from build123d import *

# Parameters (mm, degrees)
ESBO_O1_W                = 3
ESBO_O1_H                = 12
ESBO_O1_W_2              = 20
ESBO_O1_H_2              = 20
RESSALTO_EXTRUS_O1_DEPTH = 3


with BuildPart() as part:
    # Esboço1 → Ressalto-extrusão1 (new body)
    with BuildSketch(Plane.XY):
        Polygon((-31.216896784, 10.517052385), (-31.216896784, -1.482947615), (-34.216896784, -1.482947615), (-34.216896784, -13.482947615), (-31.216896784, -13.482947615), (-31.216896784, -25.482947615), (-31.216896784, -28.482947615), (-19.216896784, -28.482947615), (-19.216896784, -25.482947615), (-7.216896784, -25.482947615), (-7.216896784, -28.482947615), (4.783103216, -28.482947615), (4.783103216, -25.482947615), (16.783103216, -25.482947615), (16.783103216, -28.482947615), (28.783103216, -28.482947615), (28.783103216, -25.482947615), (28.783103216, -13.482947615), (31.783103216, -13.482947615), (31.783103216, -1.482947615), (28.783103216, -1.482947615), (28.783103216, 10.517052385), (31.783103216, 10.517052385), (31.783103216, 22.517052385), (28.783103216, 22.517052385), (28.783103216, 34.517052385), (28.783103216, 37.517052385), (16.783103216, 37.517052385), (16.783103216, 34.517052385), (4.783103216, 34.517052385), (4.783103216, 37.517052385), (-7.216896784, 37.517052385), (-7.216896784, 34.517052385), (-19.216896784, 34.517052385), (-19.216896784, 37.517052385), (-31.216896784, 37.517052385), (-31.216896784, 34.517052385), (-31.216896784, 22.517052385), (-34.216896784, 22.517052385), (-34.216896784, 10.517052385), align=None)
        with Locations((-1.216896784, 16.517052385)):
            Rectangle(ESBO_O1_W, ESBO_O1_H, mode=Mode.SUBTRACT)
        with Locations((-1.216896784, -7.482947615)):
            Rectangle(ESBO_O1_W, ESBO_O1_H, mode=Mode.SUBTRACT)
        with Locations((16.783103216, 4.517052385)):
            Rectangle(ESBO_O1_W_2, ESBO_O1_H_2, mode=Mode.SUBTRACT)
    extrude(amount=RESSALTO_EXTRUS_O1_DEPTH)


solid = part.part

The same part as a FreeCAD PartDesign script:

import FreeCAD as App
import Part
import Sketcher
from FreeCAD import Vector
Q = App.Units.Quantity

doc = App.newDocument("Part")
body = doc.addObject("PartDesign::Body", "Body")

sketch1 = body.newObject("Sketcher::SketchObject", "Sketch")
sketch1.AttachmentSupport = (doc.getObject("XY_Plane"), [""])
sketch1.MapMode = "FlatFace"
sketch1.addGeometry(Part.LineSegment(Vector(-31.216897, 10.517052, 0), Vector(-31.216897, -1.482948, 0)), False)
sketch1.addGeometry(Part.LineSegment(Vector(-31.216897, -1.482948, 0), Vector(-34.216897, -1.482948, 0)), False)
sketch1.addGeometry(Part.LineSegment(Vector(-34.216897, -1.482948, 0), Vector(-34.216897, -13.482948, 0)), False)
sketch1.addGeometry(Part.LineSegment(Vector(-34.216897, -13.482948, 0), Vector(-31.216897, -13.482948, 0)), False)
sketch1.addGeometry(Part.LineSegment(Vector(-31.216897, -13.482948, 0), Vector(-31.216897, -28.482948, 0)), False)
sketch1.addGeometry(Part.LineSegment(Vector(-31.216897, -28.482948, 0), Vector(-19.216897, -28.482948, 0)), False)
sketch1.addGeometry(Part.LineSegment(Vector(-19.216897, -28.482948, 0), Vector(-19.216897, -25.482948, 0)), False)
sketch1.addGeometry(Part.LineSegment(Vector(-19.216897, -25.482948, 0), Vector(-7.216897, -25.482948, 0)), False)
sketch1.addGeometry(Part.LineSegment(Vector(-7.216897, -25.482948, 0), Vector(-7.216897, -28.482948, 0)), False)
sketch1.addGeometry(Part.LineSegment(Vector(-7.216897, -28.482948, 0), Vector(4.783103, -28.482948, 0)), False)
sketch1.addGeometry(Part.LineSegment(Vector(4.783103, -28.482948, 0), Vector(4.783103, -25.482948, 0)), False)
sketch1.addGeometry(Part.LineSegment(Vector(4.783103, -25.482948, 0), Vector(16.783103, -25.482948, 0)), False)
sketch1.addGeometry(Part.LineSegment(Vector(16.783103, -25.482948, 0), Vector(16.783103, -28.482948, 0)), False)
sketch1.addGeometry(Part.LineSegment(Vector(16.783103, -28.482948, 0), Vector(28.783103, -28.482948, 0)), False)
sketch1.addGeometry(Part.LineSegment(Vector(28.783103, -28.482948, 0), Vector(28.783103, -13.482948, 0)), False)
sketch1.addGeometry(Part.LineSegment(Vector(28.783103, -13.482948, 0), Vector(31.783103, -13.482948, 0)), False)
sketch1.addGeometry(Part.LineSegment(Vector(31.783103, -13.482948, 0), Vector(31.783103, -1.482948, 0)), False)
sketch1.addGeometry(Part.LineSegment(Vector(31.783103, -1.482948, 0), Vector(28.783103, -1.482948, 0)), False)
sketch1.addGeometry(Part.LineSegment(Vector(28.783103, -1.482948, 0), Vector(28.783103, 10.517052, 0)), False)
sketch1.addGeometry(Part.LineSegment(Vector(28.783103, 10.517052, 0), Vector(31.783103, 10.517052, 0)), False)
sketch1.addGeometry(Part.LineSegment(Vector(31.783103, 10.517052, 0), Vector(31.783103, 22.517052, 0)), False)
sketch1.addGeometry(Part.LineSegment(Vector(31.783103, 22.517052, 0), Vector(28.783103, 22.517052, 0)), False)
sketch1.addGeometry(Part.LineSegment(Vector(28.783103, 22.517052, 0), Vector(28.783103, 37.517052, 0)), False)
sketch1.addGeometry(Part.LineSegment(Vector(28.783103, 37.517052, 0), Vector(16.783103, 37.517052, 0)), False)
sketch1.addGeometry(Part.LineSegment(Vector(16.783103, 37.517052, 0), Vector(16.783103, 34.517052, 0)), False)
sketch1.addGeometry(Part.LineSegment(Vector(16.783103, 34.517052, 0), Vector(4.783103, 34.517052, 0)), False)
sketch1.addGeometry(Part.LineSegment(Vector(4.783103, 34.517052, 0), Vector(4.783103, 37.517052, 0)), False)
sketch1.addGeometry(Part.LineSegment(Vector(4.783103, 37.517052, 0), Vector(-7.216897, 37.517052, 0)), False)
sketch1.addGeometry(Part.LineSegment(Vector(-7.216897, 37.517052, 0), Vector(-7.216897, 34.517052, 0)), False)
sketch1.addGeometry(Part.LineSegment(Vector(-7.216897, 34.517052, 0), Vector(-19.216897, 34.517052, 0)), False)
sketch1.addGeometry(Part.LineSegment(Vector(-19.216897, 34.517052, 0), Vector(-19.216897, 37.517052, 0)), False)
sketch1.addGeometry(Part.LineSegment(Vector(-19.216897, 37.517052, 0), Vector(-31.216897, 37.517052, 0)), False)
sketch1.addGeometry(Part.LineSegment(Vector(-31.216897, 37.517052, 0), Vector(-31.216897, 22.517052, 0)), False)
sketch1.addGeometry(Part.LineSegment(Vector(-31.216897, 22.517052, 0), Vector(-34.216897, 22.517052, 0)), False)
sketch1.addGeometry(Part.LineSegment(Vector(-34.216897, 22.517052, 0), Vector(-34.216897, 10.517052, 0)), False)
sketch1.addGeometry(Part.LineSegment(Vector(-34.216897, 10.517052, 0), Vector(-31.216897, 10.517052, 0)), False)
sketch1.addGeometry(Part.LineSegment(Vector(0.283103, -13.482948, 0), Vector(-2.716897, -13.482948, 0)), False)
sketch1.addGeometry(Part.LineSegment(Vector(-2.716897, -13.482948, 0), Vector(-2.716897, -1.482948, 0)), False)
sketch1.addGeometry(Part.LineSegment(Vector(-2.716897, -1.482948, 0), Vector(0.283103, -1.482948, 0)), False)
sketch1.addGeometry(Part.LineSegment(Vector(0.283103, -1.482948, 0), Vector(0.283103, -13.482948, 0)), False)
sketch1.addGeometry(Part.LineSegment(Vector(0.283103, 10.517052, 0), Vector(-2.716897, 10.517052, 0)), False)
sketch1.addGeometry(Part.LineSegment(Vector(-2.716897, 10.517052, 0), Vector(-2.716897, 22.517052, 0)), False)
sketch1.addGeometry(Part.LineSegment(Vector(-2.716897, 22.517052, 0), Vector(0.283103, 22.517052, 0)), False)
sketch1.addGeometry(Part.LineSegment(Vector(0.283103, 22.517052, 0), Vector(0.283103, 10.517052, 0)), False)
sketch1.addGeometry(Part.LineSegment(Vector(26.783103, -5.482948, 0), Vector(6.783103, -5.482948, 0)), False)
sketch1.addGeometry(Part.LineSegment(Vector(6.783103, -5.482948, 0), Vector(6.783103, 14.517052, 0)), False)
sketch1.addGeometry(Part.LineSegment(Vector(6.783103, 14.517052, 0), Vector(26.783103, 14.517052, 0)), False)
sketch1.addGeometry(Part.LineSegment(Vector(26.783103, 14.517052, 0), Vector(26.783103, -5.482948, 0)), False)
sketch1.addConstraint(Sketcher.Constraint("Coincident", 0, 2, 1, 1))
sketch1.addConstraint(Sketcher.Constraint("Coincident", 1, 2, 2, 1))
sketch1.addConstraint(Sketcher.Constraint("Coincident", 2, 2, 3, 1))
sketch1.addConstraint(Sketcher.Constraint("Coincident", 3, 2, 4, 1))
sketch1.addConstraint(Sketcher.Constraint("Coincident", 4, 2, 5, 1))
sketch1.addConstraint(Sketcher.Constraint("Coincident", 5, 2, 6, 1))
sketch1.addConstraint(Sketcher.Constraint("Coincident", 6, 2, 7, 1))
sketch1.addConstraint(Sketcher.Constraint("Coincident", 7, 2, 8, 1))
sketch1.addConstraint(Sketcher.Constraint("Coincident", 8, 2, 9, 1))
sketch1.addConstraint(Sketcher.Constraint("Coincident", 9, 2, 10, 1))
sketch1.addConstraint(Sketcher.Constraint("Coincident", 10, 2, 11, 1))
sketch1.addConstraint(Sketcher.Constraint("Coincident", 11, 2, 12, 1))
sketch1.addConstraint(Sketcher.Constraint("Coincident", 12, 2, 13, 1))
sketch1.addConstraint(Sketcher.Constraint("Coincident", 13, 2, 14, 1))
sketch1.addConstraint(Sketcher.Constraint("Coincident", 14, 2, 15, 1))
sketch1.addConstraint(Sketcher.Constraint("Coincident", 15, 2, 16, 1))
sketch1.addConstraint(Sketcher.Constraint("Coincident", 16, 2, 17, 1))
sketch1.addConstraint(Sketcher.Constraint("Coincident", 17, 2, 18, 1))
sketch1.addConstraint(Sketcher.Constraint("Coincident", 18, 2, 19, 1))
sketch1.addConstraint(Sketcher.Constraint("Coincident", 19, 2, 20, 1))
sketch1.addConstraint(Sketcher.Constraint("Coincident", 20, 2, 21, 1))
sketch1.addConstraint(Sketcher.Constraint("Coincident", 21, 2, 22, 1))
sketch1.addConstraint(Sketcher.Constraint("Coincident", 22, 2, 23, 1))
sketch1.addConstraint(Sketcher.Constraint("Coincident", 23, 2, 24, 1))
sketch1.addConstraint(Sketcher.Constraint("Coincident", 24, 2, 25, 1))
sketch1.addConstraint(Sketcher.Constraint("Coincident", 25, 2, 26, 1))
sketch1.addConstraint(Sketcher.Constraint("Coincident", 26, 2, 27, 1))
sketch1.addConstraint(Sketcher.Constraint("Coincident", 27, 2, 28, 1))
sketch1.addConstraint(Sketcher.Constraint("Coincident", 28, 2, 29, 1))
sketch1.addConstraint(Sketcher.Constraint("Coincident", 29, 2, 30, 1))
sketch1.addConstraint(Sketcher.Constraint("Coincident", 30, 2, 31, 1))
sketch1.addConstraint(Sketcher.Constraint("Coincident", 31, 2, 32, 1))
sketch1.addConstraint(Sketcher.Constraint("Coincident", 32, 2, 33, 1))
sketch1.addConstraint(Sketcher.Constraint("Coincident", 33, 2, 34, 1))
sketch1.addConstraint(Sketcher.Constraint("Coincident", 34, 2, 35, 1))
sketch1.addConstraint(Sketcher.Constraint("Coincident", 35, 2, 0, 1))
sketch1.addConstraint(Sketcher.Constraint("Coincident", 36, 2, 37, 1))
sketch1.addConstraint(Sketcher.Constraint("Coincident", 37, 2, 38, 1))
sketch1.addConstraint(Sketcher.Constraint("Coincident", 38, 2, 39, 1))
sketch1.addConstraint(Sketcher.Constraint("Coincident", 39, 2, 36, 1))
sketch1.addConstraint(Sketcher.Constraint("Coincident", 40, 2, 41, 1))
sketch1.addConstraint(Sketcher.Constraint("Coincident", 41, 2, 42, 1))
sketch1.addConstraint(Sketcher.Constraint("Coincident", 42, 2, 43, 1))
sketch1.addConstraint(Sketcher.Constraint("Coincident", 43, 2, 40, 1))
sketch1.addConstraint(Sketcher.Constraint("Coincident", 44, 2, 45, 1))
sketch1.addConstraint(Sketcher.Constraint("Coincident", 45, 2, 46, 1))
sketch1.addConstraint(Sketcher.Constraint("Coincident", 46, 2, 47, 1))
sketch1.addConstraint(Sketcher.Constraint("Coincident", 47, 2, 44, 1))
sketch1.addConstraint(Sketcher.Constraint("Vertical", 0))
sketch1.addConstraint(Sketcher.Constraint("Horizontal", 1))
sketch1.addConstraint(Sketcher.Constraint("Vertical", 2))
sketch1.addConstraint(Sketcher.Constraint("Horizontal", 3))
sketch1.addConstraint(Sketcher.Constraint("Vertical", 4))
sketch1.addConstraint(Sketcher.Constraint("Horizontal", 5))
sketch1.addConstraint(Sketcher.Constraint("Vertical", 6))
sketch1.addConstraint(Sketcher.Constraint("Horizontal", 7))
sketch1.addConstraint(Sketcher.Constraint("Vertical", 8))
sketch1.addConstraint(Sketcher.Constraint("Horizontal", 9))
sketch1.addConstraint(Sketcher.Constraint("Vertical", 10))
sketch1.addConstraint(Sketcher.Constraint("Horizontal", 11))
sketch1.addConstraint(Sketcher.Constraint("Vertical", 12))
sketch1.addConstraint(Sketcher.Constraint("Horizontal", 13))
sketch1.addConstraint(Sketcher.Constraint("Vertical", 14))
sketch1.addConstraint(Sketcher.Constraint("Horizontal", 15))
sketch1.addConstraint(Sketcher.Constraint("Vertical", 16))
sketch1.addConstraint(Sketcher.Constraint("Horizontal", 17))
sketch1.addConstraint(Sketcher.Constraint("Vertical", 18))
sketch1.addConstraint(Sketcher.Constraint("Horizontal", 19))
sketch1.addConstraint(Sketcher.Constraint("Vertical", 20))
sketch1.addConstraint(Sketcher.Constraint("Horizontal", 21))
sketch1.addConstraint(Sketcher.Constraint("Vertical", 22))
sketch1.addConstraint(Sketcher.Constraint("Horizontal", 23))
sketch1.addConstraint(Sketcher.Constraint("Vertical", 24))
sketch1.addConstraint(Sketcher.Constraint("Horizontal", 25))
sketch1.addConstraint(Sketcher.Constraint("Vertical", 26))
sketch1.addConstraint(Sketcher.Constraint("Horizontal", 27))
sketch1.addConstraint(Sketcher.Constraint("Vertical", 28))
sketch1.addConstraint(Sketcher.Constraint("Horizontal", 29))
sketch1.addConstraint(Sketcher.Constraint("Vertical", 30))
sketch1.addConstraint(Sketcher.Constraint("Horizontal", 31))
sketch1.addConstraint(Sketcher.Constraint("Vertical", 32))
sketch1.addConstraint(Sketcher.Constraint("Horizontal", 33))
sketch1.addConstraint(Sketcher.Constraint("Vertical", 34))
sketch1.addConstraint(Sketcher.Constraint("Horizontal", 35))
sketch1.addConstraint(Sketcher.Constraint("Horizontal", 36))
sketch1.addConstraint(Sketcher.Constraint("Vertical", 37))
sketch1.addConstraint(Sketcher.Constraint("Horizontal", 38))
sketch1.addConstraint(Sketcher.Constraint("Vertical", 39))
sketch1.addConstraint(Sketcher.Constraint("Horizontal", 40))
sketch1.addConstraint(Sketcher.Constraint("Vertical", 41))
sketch1.addConstraint(Sketcher.Constraint("Horizontal", 42))
sketch1.addConstraint(Sketcher.Constraint("Vertical", 43))
sketch1.addConstraint(Sketcher.Constraint("Horizontal", 44))
sketch1.addConstraint(Sketcher.Constraint("Vertical", 45))
sketch1.addConstraint(Sketcher.Constraint("Horizontal", 46))
sketch1.addConstraint(Sketcher.Constraint("Vertical", 47))
sketch1.addConstraint(Sketcher.Constraint("Horizontal", 5, 2, 8, 2))
sketch1.addConstraint(Sketcher.Constraint("Horizontal", 7, 2, 10, 2))
sketch1.addConstraint(Sketcher.Constraint("Horizontal", 9, 2, 12, 2))
sketch1.addConstraint(Sketcher.Constraint("Horizontal", 3, 2, 14, 2))
sketch1.addConstraint(Sketcher.Constraint("Horizontal", 1, 2, 16, 2))
sketch1.addConstraint(Sketcher.Constraint("Horizontal", 23, 2, 26, 2))
sketch1.addConstraint(Sketcher.Constraint("Horizontal", 25, 2, 28, 2))
sketch1.addConstraint(Sketcher.Constraint("Horizontal", 27, 2, 30, 2))
sketch1.addConstraint(Sketcher.Constraint("Horizontal", 21, 2, 32, 2))
sketch1.addConstraint(Sketcher.Constraint("Horizontal", 19, 2, 34, 2))
sketch1.addConstraint(Sketcher.Constraint("Horizontal", 15, 2, 36, 2))
sketch1.addConstraint(Sketcher.Constraint("Horizontal", 17, 2, 37, 2))
sketch1.addConstraint(Sketcher.Constraint("Horizontal", 35, 2, 40, 2))
sketch1.addConstraint(Sketcher.Constraint("Horizontal", 33, 2, 41, 2))
sketch1.addConstraint(Sketcher.Constraint("Vertical", 0, 2, 3, 2))
sketch1.addConstraint(Sketcher.Constraint("Vertical", 14, 2, 17, 2))
sketch1.addConstraint(Sketcher.Constraint("Vertical", 16, 2, 19, 2))
sketch1.addConstraint(Sketcher.Constraint("Vertical", 18, 2, 21, 2))
sketch1.addConstraint(Sketcher.Constraint("Vertical", 12, 2, 23, 2))
sketch1.addConstraint(Sketcher.Constraint("Vertical", 10, 2, 25, 2))
sketch1.addConstraint(Sketcher.Constraint("Vertical", 8, 2, 27, 2))
sketch1.addConstraint(Sketcher.Constraint("Vertical", 6, 2, 29, 2))
sketch1.addConstraint(Sketcher.Constraint("Vertical", 4, 2, 31, 2))
sketch1.addConstraint(Sketcher.Constraint("Vertical", 2, 2, 33, 2))
sketch1.addConstraint(Sketcher.Constraint("Vertical", 37, 2, 40, 2))
sketch1.addConstraint(Sketcher.Constraint("Vertical", 39, 2, 42, 2))
sketch1.addConstraint(Sketcher.Constraint("Equal", 5, 7))
sketch1.addConstraint(Sketcher.Constraint("Equal", 7, 9))
sketch1.addConstraint(Sketcher.Constraint("Equal", 9, 11))
sketch1.addConstraint(Sketcher.Constraint("Equal", 11, 13))
sketch1.addConstraint(Sketcher.Constraint("Equal", 3, 15))
sketch1.addConstraint(Sketcher.Constraint("Equal", 35, 36))
sketch1.addConstraint(Sketcher.Constraint("Equal", 31, 0))
sketch1.addConstraint(Sketcher.Constraint("Equal", 0, 2))
sketch1.addConstraint(Sketcher.Constraint("Equal", 42, 6))
sketch1.addConstraint(Sketcher.Constraint("Equal", 18, 20))
sketch1.addConstraint(Sketcher.Constraint("Equal", 14, 22))
sketch1.addConstraint(Sketcher.Constraint("Equal", 12, 24))
sketch1.addConstraint(Sketcher.Constraint("Equal", 46, 45))
sketch1.addConstraint(Sketcher.Constraint("DistanceX", 1, 2, 1, 1, Q("3 mm")))
sketch1.addConstraint(Sketcher.Constraint("DistanceX", 5, 1, 5, 2, Q("12 mm")))
sketch1.addConstraint(Sketcher.Constraint("DistanceX", 44, 2, 44, 1, Q("20 mm")))
sketch1.addConstraint(Sketcher.Constraint("DistanceY", 4, 2, 4, 1, Q("15 mm")))
sketch1.addConstraint(Sketcher.Constraint("DistanceY", 44, 2, 38, 2, Q("4 mm")))
sketch1.addConstraint(Sketcher.Constraint("DistanceX", 46, 2, 18, 2, Q("2 mm")))
sketch1.addConstraint(Sketcher.Constraint("DistanceX", 7, 2, 36, 2, Q("4.5 mm")))
sketch1.addConstraint(Sketcher.Constraint("DistanceX", 0, 2, -1, 1, Q("31.216897 mm")))
sketch1.addConstraint(Sketcher.Constraint("DistanceY", 0, 2, -1, 1, Q("1.482948 mm")))
pad1 = body.newObject("PartDesign::Pad", "Pad")
pad1.Profile = sketch1
pad1.Length = 3

doc.recompute()
